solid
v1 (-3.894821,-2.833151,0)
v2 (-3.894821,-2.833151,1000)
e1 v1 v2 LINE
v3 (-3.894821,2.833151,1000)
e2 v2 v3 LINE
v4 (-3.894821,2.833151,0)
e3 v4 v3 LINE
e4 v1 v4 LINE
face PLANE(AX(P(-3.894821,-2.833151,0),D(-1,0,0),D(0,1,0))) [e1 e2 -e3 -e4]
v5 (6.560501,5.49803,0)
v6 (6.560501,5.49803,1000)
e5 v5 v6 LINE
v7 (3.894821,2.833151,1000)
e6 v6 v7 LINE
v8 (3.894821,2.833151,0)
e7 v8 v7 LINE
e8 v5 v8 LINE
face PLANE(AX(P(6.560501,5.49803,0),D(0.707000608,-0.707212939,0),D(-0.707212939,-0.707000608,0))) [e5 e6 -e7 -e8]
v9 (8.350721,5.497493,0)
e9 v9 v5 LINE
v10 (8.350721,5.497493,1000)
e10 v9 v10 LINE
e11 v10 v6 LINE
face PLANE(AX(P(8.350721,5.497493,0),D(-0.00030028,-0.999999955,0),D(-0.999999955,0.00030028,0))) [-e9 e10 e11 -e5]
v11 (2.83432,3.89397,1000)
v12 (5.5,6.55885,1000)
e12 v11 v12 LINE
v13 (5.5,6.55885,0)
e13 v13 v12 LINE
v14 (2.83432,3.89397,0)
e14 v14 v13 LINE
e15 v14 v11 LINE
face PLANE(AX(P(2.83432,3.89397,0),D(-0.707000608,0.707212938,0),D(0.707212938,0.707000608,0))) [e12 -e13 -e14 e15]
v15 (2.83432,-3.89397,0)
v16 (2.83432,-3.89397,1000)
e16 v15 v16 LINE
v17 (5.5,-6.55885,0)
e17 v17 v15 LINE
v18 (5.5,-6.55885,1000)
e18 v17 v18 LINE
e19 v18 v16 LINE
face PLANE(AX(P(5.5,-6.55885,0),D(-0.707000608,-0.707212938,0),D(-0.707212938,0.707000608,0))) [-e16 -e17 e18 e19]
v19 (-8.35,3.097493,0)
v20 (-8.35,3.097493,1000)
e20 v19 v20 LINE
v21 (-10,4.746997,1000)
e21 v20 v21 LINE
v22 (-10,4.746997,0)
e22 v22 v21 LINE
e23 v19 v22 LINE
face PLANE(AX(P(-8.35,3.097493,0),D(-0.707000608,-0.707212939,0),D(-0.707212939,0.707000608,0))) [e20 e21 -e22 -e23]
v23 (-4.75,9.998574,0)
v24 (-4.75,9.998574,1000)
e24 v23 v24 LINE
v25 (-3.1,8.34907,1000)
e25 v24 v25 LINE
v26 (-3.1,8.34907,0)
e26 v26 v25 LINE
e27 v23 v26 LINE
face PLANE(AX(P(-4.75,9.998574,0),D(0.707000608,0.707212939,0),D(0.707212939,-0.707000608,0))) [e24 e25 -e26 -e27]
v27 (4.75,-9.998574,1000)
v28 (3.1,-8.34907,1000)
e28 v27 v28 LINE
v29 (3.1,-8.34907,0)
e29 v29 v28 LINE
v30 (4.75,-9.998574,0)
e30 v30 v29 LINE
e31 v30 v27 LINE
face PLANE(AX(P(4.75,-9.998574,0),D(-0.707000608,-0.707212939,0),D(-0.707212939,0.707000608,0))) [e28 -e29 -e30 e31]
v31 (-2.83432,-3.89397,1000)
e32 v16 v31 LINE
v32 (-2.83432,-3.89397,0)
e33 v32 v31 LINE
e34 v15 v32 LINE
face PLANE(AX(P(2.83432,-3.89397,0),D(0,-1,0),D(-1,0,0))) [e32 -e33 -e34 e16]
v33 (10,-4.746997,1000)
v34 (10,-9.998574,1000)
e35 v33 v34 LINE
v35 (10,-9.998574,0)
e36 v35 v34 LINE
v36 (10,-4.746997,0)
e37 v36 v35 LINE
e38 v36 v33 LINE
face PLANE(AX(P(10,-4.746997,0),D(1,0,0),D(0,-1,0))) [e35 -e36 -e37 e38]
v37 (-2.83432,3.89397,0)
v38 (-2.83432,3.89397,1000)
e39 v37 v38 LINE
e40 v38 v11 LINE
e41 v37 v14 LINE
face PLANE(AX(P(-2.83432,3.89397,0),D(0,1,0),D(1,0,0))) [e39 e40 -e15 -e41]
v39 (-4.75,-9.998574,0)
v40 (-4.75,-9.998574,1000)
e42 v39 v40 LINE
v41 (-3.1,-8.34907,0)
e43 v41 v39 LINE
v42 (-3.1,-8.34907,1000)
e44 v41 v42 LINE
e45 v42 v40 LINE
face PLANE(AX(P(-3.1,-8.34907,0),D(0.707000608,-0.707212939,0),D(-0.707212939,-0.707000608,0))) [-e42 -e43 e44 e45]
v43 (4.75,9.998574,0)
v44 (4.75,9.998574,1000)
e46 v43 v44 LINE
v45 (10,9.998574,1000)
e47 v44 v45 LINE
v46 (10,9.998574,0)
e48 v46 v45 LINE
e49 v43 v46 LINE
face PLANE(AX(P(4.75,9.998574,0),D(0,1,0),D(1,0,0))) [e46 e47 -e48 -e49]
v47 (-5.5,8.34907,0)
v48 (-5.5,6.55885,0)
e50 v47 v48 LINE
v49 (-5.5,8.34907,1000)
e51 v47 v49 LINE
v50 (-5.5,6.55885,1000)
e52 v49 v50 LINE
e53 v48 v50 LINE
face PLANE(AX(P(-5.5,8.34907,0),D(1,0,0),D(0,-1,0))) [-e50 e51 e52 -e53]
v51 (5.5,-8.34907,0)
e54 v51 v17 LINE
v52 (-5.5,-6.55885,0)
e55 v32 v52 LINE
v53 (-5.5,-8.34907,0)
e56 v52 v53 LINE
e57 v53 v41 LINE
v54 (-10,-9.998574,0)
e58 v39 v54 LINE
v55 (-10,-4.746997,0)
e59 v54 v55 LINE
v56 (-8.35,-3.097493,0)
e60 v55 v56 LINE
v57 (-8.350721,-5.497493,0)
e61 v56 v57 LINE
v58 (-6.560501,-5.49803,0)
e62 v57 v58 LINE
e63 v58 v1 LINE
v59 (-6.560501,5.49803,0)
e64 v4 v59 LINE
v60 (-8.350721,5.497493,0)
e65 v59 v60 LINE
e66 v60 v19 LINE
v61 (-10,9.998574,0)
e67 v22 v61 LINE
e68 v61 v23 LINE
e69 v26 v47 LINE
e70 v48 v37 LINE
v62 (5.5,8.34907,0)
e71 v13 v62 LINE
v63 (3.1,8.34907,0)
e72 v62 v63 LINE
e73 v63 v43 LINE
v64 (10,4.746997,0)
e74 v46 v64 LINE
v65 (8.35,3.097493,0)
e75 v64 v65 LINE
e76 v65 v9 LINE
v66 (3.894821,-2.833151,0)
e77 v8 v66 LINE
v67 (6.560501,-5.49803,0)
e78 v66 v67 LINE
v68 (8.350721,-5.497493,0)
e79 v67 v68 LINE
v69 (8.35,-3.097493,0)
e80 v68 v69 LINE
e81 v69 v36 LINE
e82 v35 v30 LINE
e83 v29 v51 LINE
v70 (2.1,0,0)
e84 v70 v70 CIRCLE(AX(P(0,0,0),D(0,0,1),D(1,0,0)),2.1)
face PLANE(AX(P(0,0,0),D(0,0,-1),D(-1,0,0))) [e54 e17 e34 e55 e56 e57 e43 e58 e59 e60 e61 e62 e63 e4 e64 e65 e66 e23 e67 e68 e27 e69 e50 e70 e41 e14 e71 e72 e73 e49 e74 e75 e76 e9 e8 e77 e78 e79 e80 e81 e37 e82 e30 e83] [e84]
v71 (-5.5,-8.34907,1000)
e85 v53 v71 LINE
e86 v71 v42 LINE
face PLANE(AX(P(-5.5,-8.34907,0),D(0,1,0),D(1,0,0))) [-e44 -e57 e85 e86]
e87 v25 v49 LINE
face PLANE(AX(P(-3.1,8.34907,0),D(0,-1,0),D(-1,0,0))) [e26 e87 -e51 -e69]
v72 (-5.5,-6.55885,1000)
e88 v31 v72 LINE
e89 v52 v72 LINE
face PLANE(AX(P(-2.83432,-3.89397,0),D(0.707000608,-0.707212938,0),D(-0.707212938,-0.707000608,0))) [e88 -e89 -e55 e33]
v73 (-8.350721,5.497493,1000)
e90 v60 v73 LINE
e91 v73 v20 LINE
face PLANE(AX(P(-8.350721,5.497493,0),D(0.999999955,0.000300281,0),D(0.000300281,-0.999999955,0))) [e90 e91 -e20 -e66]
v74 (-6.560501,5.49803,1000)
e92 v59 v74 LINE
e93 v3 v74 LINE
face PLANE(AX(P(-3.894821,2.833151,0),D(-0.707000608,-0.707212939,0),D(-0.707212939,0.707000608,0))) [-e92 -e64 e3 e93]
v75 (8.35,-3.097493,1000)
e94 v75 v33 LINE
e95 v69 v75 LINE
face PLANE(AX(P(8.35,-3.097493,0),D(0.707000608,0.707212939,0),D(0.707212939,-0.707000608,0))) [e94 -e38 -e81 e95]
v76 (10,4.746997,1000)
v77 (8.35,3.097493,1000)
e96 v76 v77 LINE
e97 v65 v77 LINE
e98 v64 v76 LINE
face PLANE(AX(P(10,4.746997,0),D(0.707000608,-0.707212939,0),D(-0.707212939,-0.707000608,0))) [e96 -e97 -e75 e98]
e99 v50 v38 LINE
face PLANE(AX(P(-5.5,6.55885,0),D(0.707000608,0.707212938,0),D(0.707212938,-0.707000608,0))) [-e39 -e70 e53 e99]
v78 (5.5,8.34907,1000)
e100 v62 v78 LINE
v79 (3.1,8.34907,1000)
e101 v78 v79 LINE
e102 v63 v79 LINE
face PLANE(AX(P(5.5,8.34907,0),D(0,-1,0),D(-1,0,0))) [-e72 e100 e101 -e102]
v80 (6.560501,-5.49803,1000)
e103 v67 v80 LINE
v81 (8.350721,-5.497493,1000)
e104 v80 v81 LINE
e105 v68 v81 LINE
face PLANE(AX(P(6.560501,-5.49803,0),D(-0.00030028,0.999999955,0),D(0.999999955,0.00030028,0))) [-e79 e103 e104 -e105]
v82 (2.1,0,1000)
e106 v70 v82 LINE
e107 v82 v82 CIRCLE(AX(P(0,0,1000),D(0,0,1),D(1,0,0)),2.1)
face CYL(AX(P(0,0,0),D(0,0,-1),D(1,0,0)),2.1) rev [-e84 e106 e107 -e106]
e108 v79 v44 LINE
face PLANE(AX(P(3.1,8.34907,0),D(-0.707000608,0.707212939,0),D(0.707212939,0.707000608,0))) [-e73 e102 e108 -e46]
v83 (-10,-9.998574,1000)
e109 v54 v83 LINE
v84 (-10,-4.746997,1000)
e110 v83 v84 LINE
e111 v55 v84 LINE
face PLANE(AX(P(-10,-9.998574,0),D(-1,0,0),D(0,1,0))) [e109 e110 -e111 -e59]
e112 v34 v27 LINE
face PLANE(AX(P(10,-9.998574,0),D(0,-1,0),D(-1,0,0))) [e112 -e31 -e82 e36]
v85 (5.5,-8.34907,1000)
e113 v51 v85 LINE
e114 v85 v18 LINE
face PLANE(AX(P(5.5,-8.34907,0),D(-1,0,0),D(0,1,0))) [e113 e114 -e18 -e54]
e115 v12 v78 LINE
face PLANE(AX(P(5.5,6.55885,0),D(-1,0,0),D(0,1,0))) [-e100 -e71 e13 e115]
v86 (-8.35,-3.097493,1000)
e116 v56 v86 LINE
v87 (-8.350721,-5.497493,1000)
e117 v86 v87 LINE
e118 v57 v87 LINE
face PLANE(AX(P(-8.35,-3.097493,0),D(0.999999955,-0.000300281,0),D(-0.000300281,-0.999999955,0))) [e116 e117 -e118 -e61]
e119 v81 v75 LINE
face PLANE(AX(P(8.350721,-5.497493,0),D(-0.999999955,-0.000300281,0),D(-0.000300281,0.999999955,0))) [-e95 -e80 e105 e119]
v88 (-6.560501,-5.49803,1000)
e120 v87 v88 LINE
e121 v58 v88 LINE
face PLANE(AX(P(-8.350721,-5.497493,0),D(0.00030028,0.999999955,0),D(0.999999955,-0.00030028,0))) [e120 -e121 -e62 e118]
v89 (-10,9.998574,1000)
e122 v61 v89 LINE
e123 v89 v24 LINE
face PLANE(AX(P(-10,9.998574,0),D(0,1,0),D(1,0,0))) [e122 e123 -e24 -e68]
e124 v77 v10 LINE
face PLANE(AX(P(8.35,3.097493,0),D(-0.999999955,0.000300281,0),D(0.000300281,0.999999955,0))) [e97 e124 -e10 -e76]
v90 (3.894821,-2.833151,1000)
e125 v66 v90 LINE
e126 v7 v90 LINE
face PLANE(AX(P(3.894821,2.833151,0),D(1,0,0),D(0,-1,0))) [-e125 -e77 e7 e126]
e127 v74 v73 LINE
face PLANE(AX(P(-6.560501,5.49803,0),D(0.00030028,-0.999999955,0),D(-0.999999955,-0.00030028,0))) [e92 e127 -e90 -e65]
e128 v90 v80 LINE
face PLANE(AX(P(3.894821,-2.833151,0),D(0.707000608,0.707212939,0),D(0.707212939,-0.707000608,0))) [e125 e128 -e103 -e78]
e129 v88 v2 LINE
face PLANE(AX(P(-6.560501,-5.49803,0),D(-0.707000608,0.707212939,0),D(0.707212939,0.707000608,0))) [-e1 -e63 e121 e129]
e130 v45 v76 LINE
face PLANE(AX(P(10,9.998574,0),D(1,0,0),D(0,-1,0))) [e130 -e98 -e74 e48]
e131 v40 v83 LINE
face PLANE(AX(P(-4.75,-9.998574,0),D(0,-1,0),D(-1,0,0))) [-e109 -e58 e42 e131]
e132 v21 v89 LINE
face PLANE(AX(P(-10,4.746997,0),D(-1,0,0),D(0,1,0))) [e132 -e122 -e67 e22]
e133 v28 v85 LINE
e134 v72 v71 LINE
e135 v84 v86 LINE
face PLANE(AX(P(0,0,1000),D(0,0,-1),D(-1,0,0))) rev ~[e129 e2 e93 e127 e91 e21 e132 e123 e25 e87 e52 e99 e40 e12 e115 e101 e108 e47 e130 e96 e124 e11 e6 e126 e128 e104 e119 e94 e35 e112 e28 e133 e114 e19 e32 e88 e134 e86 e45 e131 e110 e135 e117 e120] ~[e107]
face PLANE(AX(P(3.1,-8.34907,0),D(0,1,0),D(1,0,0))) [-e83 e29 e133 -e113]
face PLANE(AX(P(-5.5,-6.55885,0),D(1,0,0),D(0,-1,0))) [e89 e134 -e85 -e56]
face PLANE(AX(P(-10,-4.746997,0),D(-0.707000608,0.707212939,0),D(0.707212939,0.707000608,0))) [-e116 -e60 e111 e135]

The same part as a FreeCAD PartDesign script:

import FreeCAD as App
import Part
import Sketcher
from FreeCAD import Vector


def add_polygon(sketch, points):
    """Adds a closed chain of lines whose ends are joined by coincident constraints."""
    first, n = sketch.GeometryCount, len(points)
    for a, b in zip(points, points[1:] + points[:1]):
        sketch.addGeometry(Part.LineSegment(App.Vector(*a, 0), App.Vector(*b, 0)), False)
    for i in range(n):
        sketch.addConstraint(Sketcher.Constraint("Coincident", first + i, 2, first + (i + 1) % n, 1))

doc = App.newDocument("Part")
body = doc.addObject("PartDesign::Body", "Body")

sketch1 = body.newObject("Sketcher::SketchObject", "Sketch")
sketch1.AttachmentSupport = (doc.getObject("XY_Plane"), [""])
sketch1.MapMode = "FlatFace"
add_polygon(sketch1, [(5.5, 6.6), (2.8, 3.9), (-2.8, 3.9), (-5.5, 6.6), (-5.5, 8.3), (-3.1, 8.3), (-4.8, 10), (-10, 10), (-10, 4.7), (-8.3, 3.1), (-8.4, 5.5), (-6.6, 5.5), (-3.9, 2.8), (-3.9, -2.8), (-6.6, -5.5), (-8.4, -5.5), (-8.3, -3.1), (-10, -4.7), (-10, -10), (-4.8, -10), (-3.1, -8.3), (-5.5, -8.3), (-5.5, -6.6), (-2.8, -3.9), (2.8, -3.9), (5.5, -6.6), (5.5, -8.3), (3.1, -8.3), (4.8, -10), (10, -10), (10, -4.7), (8.3, -3.1), (8.4, -5.5), (6.6, -5.5), (3.9, -2.8), (3.9, 2.8), (6.6, 5.5), (8.4, 5.5), (8.3, 3.1), (10, 4.7), (10, 10), (4.8, 10), (3.1, 8.3), (5.5, 8.3)])
sketch1.addGeometry(Part.Circle(Vector(0, 0, 0), Vector(0, 0, 1), 2.1), False)
sketch1.addConstraint([
    Sketcher.Constraint("Horizontal", 1),
    Sketcher.Constraint("Vertical", 3),
    Sketcher.Constraint("Horizontal", 4),
    Sketcher.Constraint("Horizontal", 6),
    Sketcher.Constraint("Vertical", 7),
    Sketcher.Constraint("Vertical", 12),
    Sketcher.Constraint("Vertical", 17),
    Sketcher.Constraint("Horizontal", 18),
    Sketcher.Constraint("Horizontal", 20),
    Sketcher.Constraint("Vertical", 21),
    Sketcher.Constraint("Horizontal", 23),
    Sketcher.Constraint("Vertical", 25),
    Sketcher.Constraint("Horizontal", 26),
    Sketcher.Constraint("Horizontal", 28),
    Sketcher.Constraint("Vertical", 29),
    Sketcher.Constraint("Vertical", 34),
    Sketcher.Constraint("Vertical", 39),
    Sketcher.Constraint("Horizontal", 40),
    Sketcher.Constraint("Horizontal", 42),
    Sketcher.Constraint("Vertical", 43),
    Sketcher.Constraint("Coincident", 44, 3, -1, 1),
    Sketcher.Constraint("Symmetric", 0, 2, 22, 2, -1, 1),
    Sketcher.Constraint("Symmetric", 2, 2, 24, 2, -1, 1),
    Sketcher.Constraint("Symmetric", 4, 2, 26, 2, -1, 1),
    Sketcher.Constraint("Symmetric", 5, 2, 27, 2, -1, 1),
    Sketcher.Constraint("Symmetric", 7, 2, 29, 2, -1, 1),
    Sketcher.Constraint("Symmetric", 8, 2, 30, 2, -1, 1),
    Sketcher.Constraint("Symmetric", 9, 2, 31, 2, -1, 1),
    Sketcher.Constraint("Symmetric", 10, 2, 32, 2, -1, 1),
    Sketcher.Constraint("Symmetric", 11, 2, 33, 2, -1, 1),
    Sketcher.Constraint("Symmetric", 13, 2, 35, 2, -1, 1),
    Sketcher.Constraint("Symmetric", 14, 2, 36, 2, -1, 1),
    Sketcher.Constraint("Symmetric", 15, 2, 37, 2, -1, 1),
    Sketcher.Constraint("Symmetric", 16, 2, 38, 2, -1, 1),
    Sketcher.Constraint("Symmetric", 18, 2, 40, 2, -1, 1),
    Sketcher.Constraint("Symmetric", 19, 2, 41, 2, -1, 1),
    Sketcher.Constraint("Symmetric", 21, 2, 43, 2, -1, 1),
    Sketcher.Constraint("Symmetric", 21, 2, 24, 2, -2),
    Sketcher.Constraint("Symmetric", 19, 2, 26, 2, -2),
    Sketcher.Constraint("Symmetric", 18, 2, 27, 2, -2),
    Sketcher.Constraint("Symmetric", 16, 2, 29, 2, -2),
    Sketcher.Constraint("Symmetric", 15, 2, 30, 2, -2),
    Sketcher.Constraint("Symmetric", 14, 2, 31, 2, -2),
    Sketcher.Constraint("Symmetric", 13, 2, 32, 2, -2),
    Sketcher.Constraint("Parallel", 2, 5),
    Sketcher.Constraint("Parallel", 5, 8),
    Sketcher.Constraint("Perpendicular", 9, 10),
    Sketcher.Constraint("Parallel", 8, 11),
    Sketcher.Constraint("Parallel", 0, 13),
    Sketcher.Constraint("Parallel", 13, 16),
    Sketcher.Constraint("Parallel", 11, 24),
    Sketcher.Constraint("Parallel", 22, 35),
    Sketcher.Constraint("Equal", 5, 8),
    Sketcher.Constraint("Equal", 2, 11),
    Sketcher.Constraint("Diameter", 44, 4.2),
    Sketcher.Constraint("DistanceX", 4, 1, 4, 2, 2.4),
    Sketcher.Constraint("DistanceX", 6, 2, -1, 1, 10.0),
    Sketcher.Constraint("Distance", 9, 2.4),
    Sketcher.Constraint("DistanceX", 6, 2, 6, 1, 5.25),
    Sketcher.Constraint("DistanceX", 2, 2, -1, 1, 5.5),
    Sketcher.Constraint("DistanceY", 12, 2, 12, 1, 5.666302),
    Sketcher.Constraint("DistanceY", 13, 2, 1, 2, 9.392001),
    Sketcher.Constraint("DistanceX", 1, 2, 1, 1, 5.668641),
    Sketcher.Constraint("DistanceY", 3, 1, 3, 2, 1.79022),
    Sketcher.Constraint("DistanceX", 10, 2, -1, 1, 6.560501),
    Sketcher.Constraint("DistanceY", 1, 2, 3, 2, 4.455099),
    Sketcher.Constraint("DistanceX", 14, 2, 12, 2, 4.455899),
])
pad1 = body.newObject("PartDesign::Pad", "Pad")
pad1.Profile = sketch1
pad1.Length = 1000

doc.recompute()
